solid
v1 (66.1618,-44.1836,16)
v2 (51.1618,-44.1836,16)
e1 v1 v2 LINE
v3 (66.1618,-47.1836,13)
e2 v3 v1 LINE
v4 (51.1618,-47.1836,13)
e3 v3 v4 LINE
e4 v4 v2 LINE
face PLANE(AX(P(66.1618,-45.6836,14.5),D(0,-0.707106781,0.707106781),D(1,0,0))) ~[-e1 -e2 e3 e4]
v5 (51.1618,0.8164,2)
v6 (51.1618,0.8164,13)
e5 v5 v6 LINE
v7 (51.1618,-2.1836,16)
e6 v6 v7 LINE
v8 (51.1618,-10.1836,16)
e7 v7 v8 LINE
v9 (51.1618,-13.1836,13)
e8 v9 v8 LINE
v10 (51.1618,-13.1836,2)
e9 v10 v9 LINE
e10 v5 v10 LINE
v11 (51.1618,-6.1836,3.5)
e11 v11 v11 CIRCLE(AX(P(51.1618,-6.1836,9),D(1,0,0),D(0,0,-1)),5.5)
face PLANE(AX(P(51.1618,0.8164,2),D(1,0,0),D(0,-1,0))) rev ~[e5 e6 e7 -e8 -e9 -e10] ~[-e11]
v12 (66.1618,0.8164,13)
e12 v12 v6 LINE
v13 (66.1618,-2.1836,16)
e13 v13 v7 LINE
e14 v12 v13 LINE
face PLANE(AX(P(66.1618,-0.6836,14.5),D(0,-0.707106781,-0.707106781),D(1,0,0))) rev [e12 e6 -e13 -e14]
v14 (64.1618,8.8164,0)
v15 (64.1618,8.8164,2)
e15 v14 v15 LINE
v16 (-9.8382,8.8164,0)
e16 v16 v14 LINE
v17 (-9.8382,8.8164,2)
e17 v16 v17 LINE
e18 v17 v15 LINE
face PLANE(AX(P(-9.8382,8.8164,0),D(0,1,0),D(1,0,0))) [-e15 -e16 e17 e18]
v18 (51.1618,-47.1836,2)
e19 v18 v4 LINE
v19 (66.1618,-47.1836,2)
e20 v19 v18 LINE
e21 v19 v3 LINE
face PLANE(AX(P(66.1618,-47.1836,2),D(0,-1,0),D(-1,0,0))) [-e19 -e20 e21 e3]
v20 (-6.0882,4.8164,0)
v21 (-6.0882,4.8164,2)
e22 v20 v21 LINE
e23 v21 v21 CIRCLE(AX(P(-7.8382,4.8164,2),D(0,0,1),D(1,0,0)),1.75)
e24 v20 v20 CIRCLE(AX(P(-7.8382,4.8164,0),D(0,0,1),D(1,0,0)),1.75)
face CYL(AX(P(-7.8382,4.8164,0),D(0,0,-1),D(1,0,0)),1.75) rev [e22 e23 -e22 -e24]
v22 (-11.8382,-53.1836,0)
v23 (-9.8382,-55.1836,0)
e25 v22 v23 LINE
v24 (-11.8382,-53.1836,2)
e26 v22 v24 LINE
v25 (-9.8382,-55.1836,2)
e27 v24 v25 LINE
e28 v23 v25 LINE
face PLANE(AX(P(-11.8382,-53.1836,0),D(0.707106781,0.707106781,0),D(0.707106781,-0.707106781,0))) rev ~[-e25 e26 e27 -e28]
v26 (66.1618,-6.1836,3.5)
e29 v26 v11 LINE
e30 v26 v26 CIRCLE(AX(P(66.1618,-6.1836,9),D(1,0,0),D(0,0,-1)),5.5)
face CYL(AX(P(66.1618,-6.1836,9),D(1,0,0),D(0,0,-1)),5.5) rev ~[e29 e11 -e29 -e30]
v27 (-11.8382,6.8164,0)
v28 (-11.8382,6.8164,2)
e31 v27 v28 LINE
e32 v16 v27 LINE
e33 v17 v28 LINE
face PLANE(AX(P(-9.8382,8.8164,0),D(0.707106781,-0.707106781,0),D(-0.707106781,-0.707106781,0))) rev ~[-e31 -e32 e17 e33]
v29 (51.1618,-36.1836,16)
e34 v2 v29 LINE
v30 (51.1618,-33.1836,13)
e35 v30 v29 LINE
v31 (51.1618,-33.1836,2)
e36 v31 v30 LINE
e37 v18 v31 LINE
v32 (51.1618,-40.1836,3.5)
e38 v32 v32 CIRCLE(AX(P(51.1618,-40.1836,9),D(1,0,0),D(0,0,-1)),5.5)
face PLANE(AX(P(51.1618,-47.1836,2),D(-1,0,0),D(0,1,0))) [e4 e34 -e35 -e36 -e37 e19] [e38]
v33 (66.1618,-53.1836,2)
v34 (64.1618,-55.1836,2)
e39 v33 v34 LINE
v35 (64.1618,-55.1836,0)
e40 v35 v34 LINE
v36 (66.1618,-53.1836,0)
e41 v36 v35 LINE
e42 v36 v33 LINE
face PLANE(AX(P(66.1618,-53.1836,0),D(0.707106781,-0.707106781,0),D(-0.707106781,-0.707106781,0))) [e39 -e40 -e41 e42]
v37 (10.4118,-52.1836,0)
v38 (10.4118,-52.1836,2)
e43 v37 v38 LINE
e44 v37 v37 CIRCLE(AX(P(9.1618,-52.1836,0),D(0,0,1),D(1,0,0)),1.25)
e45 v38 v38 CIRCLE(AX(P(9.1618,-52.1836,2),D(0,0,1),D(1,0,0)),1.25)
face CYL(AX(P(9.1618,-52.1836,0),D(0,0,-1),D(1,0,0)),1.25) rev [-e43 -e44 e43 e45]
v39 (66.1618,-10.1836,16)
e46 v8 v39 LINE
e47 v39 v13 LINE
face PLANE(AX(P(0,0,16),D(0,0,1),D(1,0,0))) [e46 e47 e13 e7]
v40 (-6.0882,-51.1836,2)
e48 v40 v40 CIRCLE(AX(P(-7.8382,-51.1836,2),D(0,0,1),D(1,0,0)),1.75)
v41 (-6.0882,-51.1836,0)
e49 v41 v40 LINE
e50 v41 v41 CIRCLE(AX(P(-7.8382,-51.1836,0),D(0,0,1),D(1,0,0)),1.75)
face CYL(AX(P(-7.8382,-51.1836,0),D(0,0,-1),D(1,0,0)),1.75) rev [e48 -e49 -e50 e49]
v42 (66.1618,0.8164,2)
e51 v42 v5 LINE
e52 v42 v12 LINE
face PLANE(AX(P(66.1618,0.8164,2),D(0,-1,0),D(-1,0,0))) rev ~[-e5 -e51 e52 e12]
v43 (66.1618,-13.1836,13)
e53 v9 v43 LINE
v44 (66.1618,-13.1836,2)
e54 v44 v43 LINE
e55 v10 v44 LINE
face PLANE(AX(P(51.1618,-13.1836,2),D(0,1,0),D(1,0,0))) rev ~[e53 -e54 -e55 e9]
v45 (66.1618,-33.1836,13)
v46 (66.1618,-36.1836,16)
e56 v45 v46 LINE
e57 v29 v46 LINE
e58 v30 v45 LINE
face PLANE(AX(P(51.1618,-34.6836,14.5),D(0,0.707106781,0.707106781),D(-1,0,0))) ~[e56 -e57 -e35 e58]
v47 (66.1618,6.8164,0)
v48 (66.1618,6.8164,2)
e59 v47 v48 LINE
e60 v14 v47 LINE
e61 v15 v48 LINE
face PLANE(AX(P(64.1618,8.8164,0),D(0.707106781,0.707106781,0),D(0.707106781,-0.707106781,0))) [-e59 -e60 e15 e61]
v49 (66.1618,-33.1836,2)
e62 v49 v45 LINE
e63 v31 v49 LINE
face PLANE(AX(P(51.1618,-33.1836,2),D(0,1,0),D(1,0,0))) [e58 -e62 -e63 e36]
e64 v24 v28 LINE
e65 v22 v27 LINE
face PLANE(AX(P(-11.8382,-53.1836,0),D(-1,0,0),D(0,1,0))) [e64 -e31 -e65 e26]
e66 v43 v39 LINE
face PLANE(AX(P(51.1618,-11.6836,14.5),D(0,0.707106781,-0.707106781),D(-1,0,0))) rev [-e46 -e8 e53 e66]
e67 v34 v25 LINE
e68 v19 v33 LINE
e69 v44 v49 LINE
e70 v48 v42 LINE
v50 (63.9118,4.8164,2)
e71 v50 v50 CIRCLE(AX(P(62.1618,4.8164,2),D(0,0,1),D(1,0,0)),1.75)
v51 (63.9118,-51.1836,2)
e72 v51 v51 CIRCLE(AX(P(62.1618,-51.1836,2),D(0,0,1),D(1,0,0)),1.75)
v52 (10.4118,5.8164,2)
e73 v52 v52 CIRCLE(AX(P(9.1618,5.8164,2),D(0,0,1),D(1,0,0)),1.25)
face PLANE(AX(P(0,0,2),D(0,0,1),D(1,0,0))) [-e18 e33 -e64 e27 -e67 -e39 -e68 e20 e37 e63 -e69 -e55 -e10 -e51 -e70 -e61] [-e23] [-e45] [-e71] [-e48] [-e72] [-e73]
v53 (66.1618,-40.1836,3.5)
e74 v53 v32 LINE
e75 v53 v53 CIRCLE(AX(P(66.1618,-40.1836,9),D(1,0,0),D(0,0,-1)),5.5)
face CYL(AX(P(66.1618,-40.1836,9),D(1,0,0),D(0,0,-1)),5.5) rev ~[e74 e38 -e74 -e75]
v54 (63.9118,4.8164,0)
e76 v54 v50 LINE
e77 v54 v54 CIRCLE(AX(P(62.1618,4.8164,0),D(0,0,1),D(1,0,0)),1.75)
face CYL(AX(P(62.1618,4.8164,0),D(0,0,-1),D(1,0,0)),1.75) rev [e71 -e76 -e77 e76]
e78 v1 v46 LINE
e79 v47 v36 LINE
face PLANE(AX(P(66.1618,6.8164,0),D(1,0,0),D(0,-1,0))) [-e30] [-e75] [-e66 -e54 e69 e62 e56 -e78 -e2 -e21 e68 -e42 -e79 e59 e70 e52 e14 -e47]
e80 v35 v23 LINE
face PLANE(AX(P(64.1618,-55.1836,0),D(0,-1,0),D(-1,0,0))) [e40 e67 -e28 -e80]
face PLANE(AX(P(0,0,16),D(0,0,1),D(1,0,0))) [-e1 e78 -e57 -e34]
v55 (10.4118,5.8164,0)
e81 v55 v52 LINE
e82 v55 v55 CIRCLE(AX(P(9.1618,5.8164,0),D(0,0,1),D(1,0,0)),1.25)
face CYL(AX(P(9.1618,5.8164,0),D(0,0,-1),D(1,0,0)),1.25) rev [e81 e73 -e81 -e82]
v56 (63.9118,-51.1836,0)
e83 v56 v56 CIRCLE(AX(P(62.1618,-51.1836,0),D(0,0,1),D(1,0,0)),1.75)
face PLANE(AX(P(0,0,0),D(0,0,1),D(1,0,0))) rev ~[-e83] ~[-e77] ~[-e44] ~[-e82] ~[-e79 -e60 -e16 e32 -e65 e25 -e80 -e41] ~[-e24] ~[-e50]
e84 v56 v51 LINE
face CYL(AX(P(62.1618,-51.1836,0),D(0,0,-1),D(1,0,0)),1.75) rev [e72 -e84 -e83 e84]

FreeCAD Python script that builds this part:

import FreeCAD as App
import Part
import Sketcher


def edges_at(feature, points):
    """Names of the edges that pass closest to the given points."""
    edges = feature.Shape.Edges
    near = lambda p: min(range(len(edges)), key=lambda i: edges[i].distToShape(Part.Vertex(*p))[0])
    return sorted({f"Edge{near(p) + 1}" for p in points})

doc = App.newDocument("Part")
body = doc.addObject("PartDesign::Body", "Body")

# Sketch on XY plane
sketch1 = body.newObject("Sketcher::SketchObject", "Sketch")
sketch1.AttachmentSupport = (doc.getObject("XY_Plane"), [""])
sketch1.MapMode = "FlatFace"
sketch1.addGeometry([
    Part.LineSegment(App.Vector(64.2, 8.8, 0), App.Vector(-9.8, 8.8, 0)),  # 0
    Part.LineSegment(App.Vector(-9.8, 8.8, 0), App.Vector(-11.8, 6.8, 0)),  # 1
    Part.LineSegment(App.Vector(-11.8, 6.8, 0), App.Vector(-11.8, -53.2, 0)),  # 2
    Part.LineSegment(App.Vector(-11.8, -53.2, 0), App.Vector(-9.8, -55.2, 0)),  # 3
    Part.LineSegment(App.Vector(-9.8, -55.2, 0), App.Vector(64.2, -55.2, 0)),  # 4
    Part.LineSegment(App.Vector(64.2, -55.2, 0), App.Vector(66.2, -53.2, 0)),  # 5
    Part.LineSegment(App.Vector(66.2, -53.2, 0), App.Vector(66.2, 6.8, 0)),  # 6
    Part.LineSegment(App.Vector(66.2, 6.8, 0), App.Vector(64.2, 8.8, 0)),  # 7
    Part.Circle(App.Vector(-7.8, -51.2, 0), App.Vector(0, 0, 1), 1.8),  # 8
    Part.Circle(App.Vector(9.2, -52.2, 0), App.Vector(0, 0, 1), 1.2),  # 9
    Part.Circle(App.Vector(62.2, -51.2, 0), App.Vector(0, 0, 1), 1.8),  # 10
    Part.Circle(App.Vector(-7.8, 4.8, 0), App.Vector(0, 0, 1), 1.8),  # 11
    Part.Circle(App.Vector(9.2, 5.8, 0), App.Vector(0, 0, 1), 1.2),  # 12
    Part.Circle(App.Vector(62.2, 4.8, 0), App.Vector(0, 0, 1), 1.8),  # 13
], False)
sketch1.addConstraint([
    Sketcher.Constraint("Coincident", 0, 2, 1, 1),
    Sketcher.Constraint("Coincident", 1, 2, 2, 1),
    Sketcher.Constraint("Coincident", 2, 2, 3, 1),
    Sketcher.Constraint("Coincident", 3, 2, 4, 1),
    Sketcher.Constraint("Coincident", 4, 2, 5, 1),
    Sketcher.Constraint("Coincident", 5, 2, 6, 1),
    Sketcher.Constraint("Coincident", 6, 2, 7, 1),
    Sketcher.Constraint("Coincident", 7, 2, 0, 1),
    Sketcher.Constraint("Horizontal", 0),
    Sketcher.Constraint("Vertical", 2),
    Sketcher.Constraint("Horizontal", 4),
    Sketcher.Constraint("Vertical", 6),
    Sketcher.Constraint("Equal", 8, 10),
    Sketcher.Constraint("Equal", 10, 11),
    Sketcher.Constraint("Equal", 9, 12),
    Sketcher.Constraint("Equal", 11, 13),
    Sketcher.Constraint("Perpendicular", 1, 3),
    Sketcher.Constraint("Perpendicular", 3, 5),
    Sketcher.Constraint("Perpendicular", 5, 7),
    Sketcher.Constraint("Horizontal", 8, 3, 10, 3),
    Sketcher.Constraint("Horizontal", 11, 3, 13, 3),
    Sketcher.Constraint("Horizontal", 2, 2, 5, 2),
    Sketcher.Constraint("Horizontal", 1, 2, 6, 2),
    Sketcher.Constraint("Vertical", 8, 3, 11, 3),
    Sketcher.Constraint("Vertical", 9, 3, 12, 3),
    Sketcher.Constraint("Vertical", 10, 3, 13, 3),
    Sketcher.Constraint("Vertical", 0, 2, 3, 2),
    Sketcher.Constraint("Vertical", 4, 2, 7, 2),
    Sketcher.Constraint("Diameter", 8, 3.5),
    Sketcher.Constraint("Diameter", 9, 2.5),
    Sketcher.Constraint("DistanceX", 0, 2, 11, 3, 2.0),
    Sketcher.Constraint("DistanceY", 11, 3, 0, 2, 4.0),
    Sketcher.Constraint("DistanceY", 12, 3, 0, 2, 3.0),
    Sketcher.Constraint("DistanceX", 1, 2, 0, 2, 2.0),
    Sketcher.Constraint("DistanceX", 1, 2, 12, 3, 21.0),
    Sketcher.Constraint("DistanceY", 2, 2, 8, 3, 2.0),
    Sketcher.Constraint("DistanceY", 3, 2, 9, 3, 3.0),
    Sketcher.Constraint("DistanceX", 10, 3, 4, 2, 2.0),
    Sketcher.Constraint("DistanceX", 0, 2, 0, 1, 74.0),
    Sketcher.Constraint("DistanceY", 2, 2, 2, 1, 60.0),
    Sketcher.Constraint("DistanceX", 8, 3, -1, 1, 7.8382),
    Sketcher.Constraint("DistanceY", 8, 3, -1, 1, 51.1836),
])
pad1 = body.newObject("PartDesign::Pad", "Pad")
pad1.Profile = sketch1
pad1.Length = 2

# Sketch on XY plane
sketch2 = body.newObject("Sketcher::SketchObject", "Sketch001")
sketch2.AttachmentSupport = (doc.getObject("XY_Plane"), [""])
sketch2.MapMode = "FlatFace"
sketch2.AttachmentOffset = App.Placement(App.Vector(0, 0, 2), App.Rotation())
sketch2.addGeometry([
    Part.LineSegment(App.Vector(51, -47, 0), App.Vector(66, -47, 0)),  # 0
    Part.LineSegment(App.Vector(66, -47, 0), App.Vector(66, -33, 0)),  # 1
    Part.LineSegment(App.Vector(66, -33, 0), App.Vector(51, -33, 0)),  # 2
    Part.LineSegment(App.Vector(51, -33, 0), App.Vector(51, -47, 0)),  # 3
    Part.LineSegment(App.Vector(51, -13, 0), App.Vector(66, -13, 0)),  # 4
    Part.LineSegment(App.Vector(66, -13, 0), App.Vector(66, 1, 0)),  # 5
    Part.LineSegment(App.Vector(66, 1, 0), App.Vector(51, 1, 0)),  # 6
    Part.LineSegment(App.Vector(51, 1, 0), App.Vector(51, -13, 0)),  # 7
], False)
sketch2.addConstraint([
    Sketcher.Constraint("Coincident", 0, 2, 1, 1),
    Sketcher.Constraint("Coincident", 1, 2, 2, 1),
    Sketcher.Constraint("Coincident", 2, 2, 3, 1),
    Sketcher.Constraint("Coincident", 3, 2, 0, 1),
    Sketcher.Constraint("Coincident", 4, 2, 5, 1),
    Sketcher.Constraint("Coincident", 5, 2, 6, 1),
    Sketcher.Constraint("Coincident", 6, 2, 7, 1),
    Sketcher.Constraint("Coincident", 7, 2, 4, 1),
    Sketcher.Constraint("Horizontal", 0),
    Sketcher.Constraint("Vertical", 1),
    Sketcher.Constraint("Horizontal", 2),
    Sketcher.Constraint("Vertical", 3),
    Sketcher.Constraint("Horizontal", 4),
    Sketcher.Constraint("Vertical", 5),
    Sketcher.Constraint("Horizontal", 6),
    Sketcher.Constraint("Vertical", 7),
    Sketcher.Constraint("Vertical", 1, 2, 4, 2),
    Sketcher.Constraint("Vertical", 3, 2, 6, 2),
    Sketcher.Constraint("Equal", 3, 5),
    Sketcher.Constraint("DistanceX", 0, 1, 0, 2, 15.0),
    Sketcher.Constraint("DistanceY", 1, 1, 1, 2, 14.0),
    Sketcher.Constraint("DistanceY", 1, 2, 4, 2, 20.0),
    Sketcher.Constraint("DistanceX", -1, 1, 0, 2, 66.1618),
    Sketcher.Constraint("DistanceY", 0, 2, -1, 1, 47.1836),
])
pad2 = body.newObject("PartDesign::Pad", "Pad001")
pad2.Profile = sketch2
pad2.Length = 14

# Sketch on YZ plane
sketch3 = body.newObject("Sketcher::SketchObject", "Sketch002")
sketch3.AttachmentSupport = (doc.getObject("YZ_Plane"), [""])
sketch3.MapMode = "FlatFace"
sketch3.AttachmentOffset = App.Placement(App.Vector(0, 0, 66.1618), App.Rotation())
sketch3.addGeometry([
    Part.Circle(App.Vector(-40, 9, 0), App.Vector(0, 0, 1), 6),
    Part.Circle(App.Vector(-6, 9, 0), App.Vector(0, 0, 1), 6),
], False)
sketch3.addConstraint([
    Sketcher.Constraint("Equal", 0, 1),
    Sketcher.Constraint("Horizontal", 0, 3, 1, 3),
    Sketcher.Constraint("Diameter", 0, 11.0),
    Sketcher.Constraint("DistanceY", -1, 1, 0, 3, 9.0),
    Sketcher.Constraint("DistanceX", 0, 3, 1, 3, 34.0),
    Sketcher.Constraint("DistanceX", 0, 3, -1, 1, 40.1836),
])
pocket1 = body.newObject("PartDesign::Pocket", "Pocket")
pocket1.Profile = sketch3
pocket1.Length = 15
doc.recompute()

chamfer = body.newObject("PartDesign::Chamfer", "Chamfer")
chamfer.Base = (pocket1, edges_at(pocket1, [
    (58.662, 0.816, 16),
    (58.662, -13.184, 16),
    (58.662, -33.184, 16),
    (58.662, -47.184, 16),
]))
chamfer.Size = 3

doc.recompute()
